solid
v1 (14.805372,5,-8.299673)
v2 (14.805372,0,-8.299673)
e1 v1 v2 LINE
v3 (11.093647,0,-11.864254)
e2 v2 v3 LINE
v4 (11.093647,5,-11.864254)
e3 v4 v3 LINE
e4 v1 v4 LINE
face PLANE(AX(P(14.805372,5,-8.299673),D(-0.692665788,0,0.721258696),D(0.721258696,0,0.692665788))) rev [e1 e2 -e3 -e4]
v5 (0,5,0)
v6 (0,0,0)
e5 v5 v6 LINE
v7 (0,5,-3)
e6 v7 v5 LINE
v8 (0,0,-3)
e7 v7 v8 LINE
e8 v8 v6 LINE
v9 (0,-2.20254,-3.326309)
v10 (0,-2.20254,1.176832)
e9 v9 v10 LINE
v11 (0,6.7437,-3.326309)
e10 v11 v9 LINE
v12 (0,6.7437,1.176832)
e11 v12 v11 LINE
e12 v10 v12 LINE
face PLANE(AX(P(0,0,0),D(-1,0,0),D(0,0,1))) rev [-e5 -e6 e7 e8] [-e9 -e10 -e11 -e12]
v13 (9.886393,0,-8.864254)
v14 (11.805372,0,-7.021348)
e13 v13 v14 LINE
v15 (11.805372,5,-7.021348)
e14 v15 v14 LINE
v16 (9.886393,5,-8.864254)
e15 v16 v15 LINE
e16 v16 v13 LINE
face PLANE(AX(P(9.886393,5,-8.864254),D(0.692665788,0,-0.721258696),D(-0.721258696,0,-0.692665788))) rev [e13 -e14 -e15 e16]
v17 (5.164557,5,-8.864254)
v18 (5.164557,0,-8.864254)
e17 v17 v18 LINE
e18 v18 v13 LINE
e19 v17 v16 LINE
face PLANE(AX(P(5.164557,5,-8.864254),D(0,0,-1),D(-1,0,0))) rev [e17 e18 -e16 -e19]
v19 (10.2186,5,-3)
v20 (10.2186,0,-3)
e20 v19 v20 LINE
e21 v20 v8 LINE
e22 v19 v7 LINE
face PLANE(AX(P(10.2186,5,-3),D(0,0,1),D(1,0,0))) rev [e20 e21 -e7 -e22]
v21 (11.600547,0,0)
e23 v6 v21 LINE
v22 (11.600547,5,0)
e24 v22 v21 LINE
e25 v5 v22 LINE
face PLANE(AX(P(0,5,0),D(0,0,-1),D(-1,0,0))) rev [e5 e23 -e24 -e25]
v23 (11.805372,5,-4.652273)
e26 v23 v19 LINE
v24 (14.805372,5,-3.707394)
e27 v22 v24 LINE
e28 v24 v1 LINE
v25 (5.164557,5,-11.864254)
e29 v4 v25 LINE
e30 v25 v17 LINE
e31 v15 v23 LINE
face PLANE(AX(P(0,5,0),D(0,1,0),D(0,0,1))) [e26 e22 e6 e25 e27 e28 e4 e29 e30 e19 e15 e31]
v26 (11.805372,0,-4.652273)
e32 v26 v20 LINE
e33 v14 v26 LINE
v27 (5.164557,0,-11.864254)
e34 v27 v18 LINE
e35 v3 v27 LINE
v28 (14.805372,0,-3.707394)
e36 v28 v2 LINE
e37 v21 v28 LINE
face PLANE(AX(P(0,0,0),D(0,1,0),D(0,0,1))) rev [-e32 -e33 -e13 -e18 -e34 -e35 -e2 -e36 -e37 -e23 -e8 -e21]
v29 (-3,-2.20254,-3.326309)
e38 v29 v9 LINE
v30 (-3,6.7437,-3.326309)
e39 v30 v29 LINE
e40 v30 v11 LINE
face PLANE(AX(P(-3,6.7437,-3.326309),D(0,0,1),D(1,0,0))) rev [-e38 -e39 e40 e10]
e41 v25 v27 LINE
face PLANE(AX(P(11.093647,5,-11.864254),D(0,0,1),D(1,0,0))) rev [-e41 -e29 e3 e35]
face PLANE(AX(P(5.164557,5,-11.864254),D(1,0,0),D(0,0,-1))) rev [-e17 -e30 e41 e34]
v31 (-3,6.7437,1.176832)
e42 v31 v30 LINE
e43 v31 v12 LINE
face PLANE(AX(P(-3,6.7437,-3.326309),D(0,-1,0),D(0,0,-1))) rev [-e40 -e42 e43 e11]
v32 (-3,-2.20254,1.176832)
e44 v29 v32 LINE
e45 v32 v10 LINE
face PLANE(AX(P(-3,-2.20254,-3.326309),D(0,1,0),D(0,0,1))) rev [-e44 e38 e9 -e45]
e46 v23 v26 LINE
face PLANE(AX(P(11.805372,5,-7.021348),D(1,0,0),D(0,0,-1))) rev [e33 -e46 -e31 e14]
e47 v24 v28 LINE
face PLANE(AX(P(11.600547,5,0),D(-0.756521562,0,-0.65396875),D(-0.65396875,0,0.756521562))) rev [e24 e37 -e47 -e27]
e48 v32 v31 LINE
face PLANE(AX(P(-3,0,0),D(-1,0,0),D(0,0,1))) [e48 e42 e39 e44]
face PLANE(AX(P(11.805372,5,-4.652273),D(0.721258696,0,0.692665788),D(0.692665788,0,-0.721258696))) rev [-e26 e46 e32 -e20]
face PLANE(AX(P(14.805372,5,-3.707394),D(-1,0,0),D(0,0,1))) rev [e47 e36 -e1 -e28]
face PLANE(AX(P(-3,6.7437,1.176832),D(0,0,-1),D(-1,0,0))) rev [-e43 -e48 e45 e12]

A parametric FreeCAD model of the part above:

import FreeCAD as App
import Part
import Sketcher


def add_polygon(sketch, points):
    """Adds a closed chain of lines whose ends are joined by coincident constraints."""
    first, n = sketch.GeometryCount, len(points)
    for a, b in zip(points, points[1:] + points[:1]):
        sketch.addGeometry(Part.LineSegment(App.Vector(*a, 0), App.Vector(*b, 0)), False)
    for i in range(n):
        sketch.addConstraint(Sketcher.Constraint("Coincident", first + i, 2, first + (i + 1) % n, 1))

doc = App.newDocument("Part")
body = doc.addObject("PartDesign::Body", "Body")

# Sketch on XZ plane
sketch1 = doc.addObject("Sketcher::SketchObject", "Sketch")
body.addObject(sketch1)
sketch1.AttachmentSupport = (doc.XZ_Plane, [""])
sketch1.MapMode = "FlatFace"
add_polygon(sketch1, [(0, 0), (11.6, 0), (14.8, -3.7), (14.8, -8.3), (11.1, -11.9), (5.2, -11.9), (5.2, -8.9), (9.9, -8.9), (11.8, -7), (11.8, -4.7), (10.2, -3), (0, -3)])  # lines 0-11
sketch1.addConstraint(Sketcher.Constraint("Horizontal", 0))
sketch1.addConstraint(Sketcher.Constraint("Vertical", 2))
sketch1.addConstraint(Sketcher.Constraint("Horizontal", 4))
sketch1.addConstraint(Sketcher.Constraint("Vertical", 5))
sketch1.addConstraint(Sketcher.Constraint("Horizontal", 6))
sketch1.addConstraint(Sketcher.Constraint("Vertical", 8))
sketch1.addConstraint(Sketcher.Constraint("Horizontal", 10))
sketch1.addConstraint(Sketcher.Constraint("Vertical", 11))
sketch1.addConstraint(Sketcher.Constraint("Coincident", 11, 2, -1, 1))
sketch1.addConstraint(Sketcher.Constraint("Parallel", 3, 7))
sketch1.addConstraint(Sketcher.Constraint("Perpendicular", 7, 9))
sketch1.addConstraint(Sketcher.Constraint("Equal", 5, 11))
sketch1.addConstraint(Sketcher.Constraint("DistanceY", 5, 1, 5, 2, 3.0))
sketch1.addConstraint(Sketcher.Constraint("DistanceX", 7, 2, 2, 2, 3.0))
sketch1.addConstraint(Sketcher.Constraint("DistanceX", 10, 2, 10, 1, 10.2186))
sketch1.addConstraint(Sketcher.Constraint("DistanceX", 4, 2, 4, 1, 5.92909))
sketch1.addConstraint(Sketcher.Constraint("DistanceY", 2, 2, 2, 1, 4.592279))
sketch1.addConstraint(Sketcher.Constraint("DistanceX", 3, 2, 0, 2, 0.506899))
sketch1.addConstraint(Sketcher.Constraint("DistanceY", 2, 2, 8, 2, 3.6474))
sketch1.addConstraint(Sketcher.Constraint("Distance", 1, 4.900579))
sketch1.addConstraint(Sketcher.Constraint("Distance", 9, 2.290819))
sketch1.addConstraint(Sketcher.Constraint("DistanceX", 0, 1, 0, 2, 11.600547))
sketch1.addConstraint(Sketcher.Constraint("DistanceX", 6, 1, 6, 2, 4.721836))
pad1 = doc.addObject("PartDesign::Pad", "Pad")
body.addObject(pad1)
pad1.Profile = sketch1
pad1.Length = 5
pad1.Reversed = True

# Sketch on YZ plane
sketch2 = doc.addObject("Sketcher::SketchObject", "Sketch001")
body.addObject(sketch2)
sketch2.AttachmentSupport = (doc.YZ_Plane, [""])
sketch2.MapMode = "FlatFace"
add_polygon(sketch2, [(6.7, -3.3), (-2.2, -3.3), (-2.2, 1.2), (6.7, 1.2)])  # lines 0-3
sketch2.addConstraint(Sketcher.Constraint("Horizontal", 0))
sketch2.addConstraint(Sketcher.Constraint("Vertical", 1))
sketch2.addConstraint(Sketcher.Constraint("Horizontal", 2))
sketch2.addConstraint(Sketcher.Constraint("Vertical", 3))
sketch2.addConstraint(Sketcher.Constraint("DistanceX", 0, 2, 0, 1, 8.94624))
sketch2.addConstraint(Sketcher.Constraint("DistanceY", 1, 1, 1, 2, 4.503141))
sketch2.addConstraint(Sketcher.Constraint("DistanceX", -1, 1, 2, 2, 6.7437))
sketch2.addConstraint(Sketcher.Constraint("DistanceY", 0, 2, -1, 1, 3.326309))
pad2 = doc.addObject("PartDesign::Pad", "Pad001")
body.addObject(pad2)
pad2.Profile = sketch2
pad2.Length = 3
pad2.Reversed = True

doc.recompute()
